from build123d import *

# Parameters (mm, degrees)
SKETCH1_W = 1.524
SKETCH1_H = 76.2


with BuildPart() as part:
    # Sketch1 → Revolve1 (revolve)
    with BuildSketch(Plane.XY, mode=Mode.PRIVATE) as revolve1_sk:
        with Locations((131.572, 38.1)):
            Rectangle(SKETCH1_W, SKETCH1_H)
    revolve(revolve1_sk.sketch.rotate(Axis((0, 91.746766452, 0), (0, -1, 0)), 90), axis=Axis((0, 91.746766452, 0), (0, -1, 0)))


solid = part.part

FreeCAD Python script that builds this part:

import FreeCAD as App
import Part
import Sketcher
Q = App.Units.Quantity

doc = App.newDocument("Part")
params = doc.addObject("Spreadsheet::Sheet", "Params")
for row, (alias, value) in enumerate([
    ("sketch1_height", "3 in"),
    ("sketch1_width", "0.06 in"),
    ("revolution_angle", "360 deg"),
], start=1):
    params.set(f"A{row}", alias)
    params.set(f"B{row}", "=" + value)
    params.setAlias(f"B{row}", alias)

body = doc.addObject("PartDesign::Body", "Body")

# Sketch on XY plane
sketch1 = doc.addObject("Sketcher::SketchObject", "Sketch")
body.addObject(sketch1)
sketch1.AttachmentSupport = (doc.XY_Plane, [""])
sketch1.MapMode = "FlatFace"
sketch1.addGeometry(Part.LineSegment(App.Vector(130.8, 76.2, 0), App.Vector(130.8, 0, 0)), False)
sketch1.addGeometry(Part.LineSegment(App.Vector(130.8, 0, 0), App.Vector(132.3, 0, 0)), False)
sketch1.addGeometry(Part.LineSegment(App.Vector(132.3, 0, 0), App.Vector(132.3, 76.2, 0)), False)
sketch1.addGeometry(Part.LineSegment(App.Vector(132.3, 76.2, 0), App.Vector(130.8, 76.2, 0)), False)
sketch1.addConstraint(Sketcher.Constraint("Coincident", 0, 2, 1, 1))
sketch1.addConstraint(Sketcher.Constraint("Coincident", 1, 2, 2, 1))
sketch1.addConstraint(Sketcher.Constraint("Coincident", 2, 2, 3, 1))
sketch1.addConstraint(Sketcher.Constraint("Coincident", 3, 2, 0, 1))
sketch1.addConstraint(Sketcher.Constraint("Vertical", 0))
sketch1.addConstraint(Sketcher.Constraint("Horizontal", 1))
sketch1.addConstraint(Sketcher.Constraint("Vertical", 2))
sketch1.addConstraint(Sketcher.Constraint("Horizontal", 3))
sketch1.addConstraint(Sketcher.Constraint("PointOnObject", 0, 2, -1))
sketch1.addConstraint(Sketcher.Constraint("DistanceY", 0, 2, 0, 1, Q("3 in")))
sketch1.addConstraint(Sketcher.Constraint("DistanceX", 1, 1, 1, 2, Q("0.06 in")))
sketch1.addConstraint(Sketcher.Constraint("DistanceX", -1, 1, 0, 2, Q("5.15 in")))
sketch1.setExpression("Constraints[9]", "Params.sketch1_height")
sketch1.setExpression("Constraints[10]", "Params.sketch1_width")
revolution = doc.addObject("PartDesign::Revolution", "Revolution")
body.addObject(revolution)
revolution.Profile = sketch1
revolution.ReferenceAxis = (sketch1, ["V_Axis"])
revolution.setExpression("Angle", "Params.revolution_angle")

doc.recompute()
